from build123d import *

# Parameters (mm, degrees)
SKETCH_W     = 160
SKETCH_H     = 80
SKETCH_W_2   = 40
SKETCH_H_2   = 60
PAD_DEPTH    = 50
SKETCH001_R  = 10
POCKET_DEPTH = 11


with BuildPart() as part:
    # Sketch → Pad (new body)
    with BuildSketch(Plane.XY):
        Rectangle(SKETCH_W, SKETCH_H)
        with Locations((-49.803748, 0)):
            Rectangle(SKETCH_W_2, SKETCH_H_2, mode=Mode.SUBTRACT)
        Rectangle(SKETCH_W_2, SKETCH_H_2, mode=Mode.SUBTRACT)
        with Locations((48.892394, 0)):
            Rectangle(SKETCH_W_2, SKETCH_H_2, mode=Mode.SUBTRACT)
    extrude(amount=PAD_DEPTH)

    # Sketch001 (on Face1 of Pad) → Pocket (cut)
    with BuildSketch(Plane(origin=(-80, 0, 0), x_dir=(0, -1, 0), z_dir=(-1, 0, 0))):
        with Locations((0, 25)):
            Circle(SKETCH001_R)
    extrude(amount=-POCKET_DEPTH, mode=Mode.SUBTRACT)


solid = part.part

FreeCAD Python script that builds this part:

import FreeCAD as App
import Part
import Sketcher

V = App.Vector
Q = App.Units.Quantity


def add_polygon(sketch, points):
    """Adds a closed chain of lines whose ends are joined by coincident constraints."""
    first, n = sketch.GeometryCount, len(points)
    for a, b in zip(points, points[1:] + points[:1]):
        sketch.addGeometry(Part.LineSegment(App.Vector(*a, 0), App.Vector(*b, 0)), False)
    for i in range(n):
        sketch.addConstraint(Sketcher.Constraint("Coincident", first + i, 2, first + (i + 1) % n, 1))

doc = App.newDocument("Part")
body = doc.addObject("PartDesign::Body", "Body")

# Sketch on XY plane
sketch1 = doc.addObject("Sketcher::SketchObject", "Sketch")
body.addObject(sketch1)
sketch1.AttachmentSupport = (doc.XY_Plane, [""])
sketch1.MapMode = "FlatFace"
add_polygon(sketch1, [(-80, 40), (-80, -40), (80, -40), (80, 40)])  # lines 0-3
add_polygon(sketch1, [(-30, -30), (-70, -30), (-70, 30), (-30, 30)])  # lines 4-7
add_polygon(sketch1, [(20, -30), (-20, -30), (-20, 30), (20, 30)])  # lines 8-11
add_polygon(sketch1, [(69, -30), (29, -30), (29, 30), (69, 30)])  # lines 12-15
sketch1.addConstraint([
    Sketcher.Constraint("Vertical", 0),
    Sketcher.Constraint("Horizontal", 1),
    Sketcher.Constraint("Vertical", 2),
    Sketcher.Constraint("Horizontal", 3),
    Sketcher.Constraint("Horizontal", 4),
    Sketcher.Constraint("Vertical", 5),
    Sketcher.Constraint("Horizontal", 6),
    Sketcher.Constraint("Vertical", 7),
    Sketcher.Constraint("Horizontal", 8),
    Sketcher.Constraint("Vertical", 9),
    Sketcher.Constraint("Horizontal", 10),
    Sketcher.Constraint("Vertical", 11),
    Sketcher.Constraint("Horizontal", 12),
    Sketcher.Constraint("Vertical", 13),
    Sketcher.Constraint("Horizontal", 14),
    Sketcher.Constraint("Vertical", 15),
    Sketcher.Constraint("Symmetric", 0, 2, 2, 2, -1, 1),
    Sketcher.Constraint("Symmetric", 8, 2, 10, 2, -1, 1),
    Sketcher.Constraint("Horizontal", 7, 2, 8, 2),
    Sketcher.Constraint("Horizontal", 6, 2, 9, 2),
    Sketcher.Constraint("Horizontal", 11, 2, 12, 2),
    Sketcher.Constraint("Horizontal", 10, 2, 13, 2),
    Sketcher.Constraint("Equal", 6, 8),
    Sketcher.Constraint("Equal", 10, 12),
    Sketcher.Constraint("DistanceX", 1, 1, 1, 2, Q("160 mm")),
    Sketcher.Constraint("DistanceX", 4, 2, 4, 1, Q("40 mm")),
    Sketcher.Constraint("DistanceY", 0, 2, 0, 1, Q("80 mm")),
    Sketcher.Constraint("DistanceY", 5, 1, 5, 2, Q("60 mm")),
    Sketcher.Constraint("DistanceX", 4, 2, -1, 1, Q("69.803748 mm")),
    Sketcher.Constraint("DistanceX", 7, 2, 12, 2, Q("58.696142 mm")),
])
pad1 = doc.addObject("PartDesign::Pad", "Pad")
body.addObject(pad1)
pad1.Profile = sketch1
pad1.Length = 50

# Sketch on YZ plane
sketch2 = doc.addObject("Sketcher::SketchObject", "Sketch001")
body.addObject(sketch2)
sketch2.AttachmentSupport = (doc.YZ_Plane, [""])
sketch2.MapMode = "FlatFace"
sketch2.AttachmentOffset = App.Placement(V(0, 0, -80), App.Rotation())
sketch2.addGeometry(Part.Circle(V(0, 25, 0), V(0, 0, 1), 10), False)
sketch2.addConstraint([
    Sketcher.Constraint("PointOnObject", 0, 3, -2),
    Sketcher.Constraint("Diameter", 0, Q("20 mm")),
    Sketcher.Constraint("DistanceY", -1, 1, 0, 3, Q("25 mm")),
])
pocket1 = doc.addObject("PartDesign::Pocket", "Pocket")
body.addObject(pocket1)
pocket1.Profile = sketch2
pocket1.Length = 11
pocket1.Reversed = True

doc.recompute()
